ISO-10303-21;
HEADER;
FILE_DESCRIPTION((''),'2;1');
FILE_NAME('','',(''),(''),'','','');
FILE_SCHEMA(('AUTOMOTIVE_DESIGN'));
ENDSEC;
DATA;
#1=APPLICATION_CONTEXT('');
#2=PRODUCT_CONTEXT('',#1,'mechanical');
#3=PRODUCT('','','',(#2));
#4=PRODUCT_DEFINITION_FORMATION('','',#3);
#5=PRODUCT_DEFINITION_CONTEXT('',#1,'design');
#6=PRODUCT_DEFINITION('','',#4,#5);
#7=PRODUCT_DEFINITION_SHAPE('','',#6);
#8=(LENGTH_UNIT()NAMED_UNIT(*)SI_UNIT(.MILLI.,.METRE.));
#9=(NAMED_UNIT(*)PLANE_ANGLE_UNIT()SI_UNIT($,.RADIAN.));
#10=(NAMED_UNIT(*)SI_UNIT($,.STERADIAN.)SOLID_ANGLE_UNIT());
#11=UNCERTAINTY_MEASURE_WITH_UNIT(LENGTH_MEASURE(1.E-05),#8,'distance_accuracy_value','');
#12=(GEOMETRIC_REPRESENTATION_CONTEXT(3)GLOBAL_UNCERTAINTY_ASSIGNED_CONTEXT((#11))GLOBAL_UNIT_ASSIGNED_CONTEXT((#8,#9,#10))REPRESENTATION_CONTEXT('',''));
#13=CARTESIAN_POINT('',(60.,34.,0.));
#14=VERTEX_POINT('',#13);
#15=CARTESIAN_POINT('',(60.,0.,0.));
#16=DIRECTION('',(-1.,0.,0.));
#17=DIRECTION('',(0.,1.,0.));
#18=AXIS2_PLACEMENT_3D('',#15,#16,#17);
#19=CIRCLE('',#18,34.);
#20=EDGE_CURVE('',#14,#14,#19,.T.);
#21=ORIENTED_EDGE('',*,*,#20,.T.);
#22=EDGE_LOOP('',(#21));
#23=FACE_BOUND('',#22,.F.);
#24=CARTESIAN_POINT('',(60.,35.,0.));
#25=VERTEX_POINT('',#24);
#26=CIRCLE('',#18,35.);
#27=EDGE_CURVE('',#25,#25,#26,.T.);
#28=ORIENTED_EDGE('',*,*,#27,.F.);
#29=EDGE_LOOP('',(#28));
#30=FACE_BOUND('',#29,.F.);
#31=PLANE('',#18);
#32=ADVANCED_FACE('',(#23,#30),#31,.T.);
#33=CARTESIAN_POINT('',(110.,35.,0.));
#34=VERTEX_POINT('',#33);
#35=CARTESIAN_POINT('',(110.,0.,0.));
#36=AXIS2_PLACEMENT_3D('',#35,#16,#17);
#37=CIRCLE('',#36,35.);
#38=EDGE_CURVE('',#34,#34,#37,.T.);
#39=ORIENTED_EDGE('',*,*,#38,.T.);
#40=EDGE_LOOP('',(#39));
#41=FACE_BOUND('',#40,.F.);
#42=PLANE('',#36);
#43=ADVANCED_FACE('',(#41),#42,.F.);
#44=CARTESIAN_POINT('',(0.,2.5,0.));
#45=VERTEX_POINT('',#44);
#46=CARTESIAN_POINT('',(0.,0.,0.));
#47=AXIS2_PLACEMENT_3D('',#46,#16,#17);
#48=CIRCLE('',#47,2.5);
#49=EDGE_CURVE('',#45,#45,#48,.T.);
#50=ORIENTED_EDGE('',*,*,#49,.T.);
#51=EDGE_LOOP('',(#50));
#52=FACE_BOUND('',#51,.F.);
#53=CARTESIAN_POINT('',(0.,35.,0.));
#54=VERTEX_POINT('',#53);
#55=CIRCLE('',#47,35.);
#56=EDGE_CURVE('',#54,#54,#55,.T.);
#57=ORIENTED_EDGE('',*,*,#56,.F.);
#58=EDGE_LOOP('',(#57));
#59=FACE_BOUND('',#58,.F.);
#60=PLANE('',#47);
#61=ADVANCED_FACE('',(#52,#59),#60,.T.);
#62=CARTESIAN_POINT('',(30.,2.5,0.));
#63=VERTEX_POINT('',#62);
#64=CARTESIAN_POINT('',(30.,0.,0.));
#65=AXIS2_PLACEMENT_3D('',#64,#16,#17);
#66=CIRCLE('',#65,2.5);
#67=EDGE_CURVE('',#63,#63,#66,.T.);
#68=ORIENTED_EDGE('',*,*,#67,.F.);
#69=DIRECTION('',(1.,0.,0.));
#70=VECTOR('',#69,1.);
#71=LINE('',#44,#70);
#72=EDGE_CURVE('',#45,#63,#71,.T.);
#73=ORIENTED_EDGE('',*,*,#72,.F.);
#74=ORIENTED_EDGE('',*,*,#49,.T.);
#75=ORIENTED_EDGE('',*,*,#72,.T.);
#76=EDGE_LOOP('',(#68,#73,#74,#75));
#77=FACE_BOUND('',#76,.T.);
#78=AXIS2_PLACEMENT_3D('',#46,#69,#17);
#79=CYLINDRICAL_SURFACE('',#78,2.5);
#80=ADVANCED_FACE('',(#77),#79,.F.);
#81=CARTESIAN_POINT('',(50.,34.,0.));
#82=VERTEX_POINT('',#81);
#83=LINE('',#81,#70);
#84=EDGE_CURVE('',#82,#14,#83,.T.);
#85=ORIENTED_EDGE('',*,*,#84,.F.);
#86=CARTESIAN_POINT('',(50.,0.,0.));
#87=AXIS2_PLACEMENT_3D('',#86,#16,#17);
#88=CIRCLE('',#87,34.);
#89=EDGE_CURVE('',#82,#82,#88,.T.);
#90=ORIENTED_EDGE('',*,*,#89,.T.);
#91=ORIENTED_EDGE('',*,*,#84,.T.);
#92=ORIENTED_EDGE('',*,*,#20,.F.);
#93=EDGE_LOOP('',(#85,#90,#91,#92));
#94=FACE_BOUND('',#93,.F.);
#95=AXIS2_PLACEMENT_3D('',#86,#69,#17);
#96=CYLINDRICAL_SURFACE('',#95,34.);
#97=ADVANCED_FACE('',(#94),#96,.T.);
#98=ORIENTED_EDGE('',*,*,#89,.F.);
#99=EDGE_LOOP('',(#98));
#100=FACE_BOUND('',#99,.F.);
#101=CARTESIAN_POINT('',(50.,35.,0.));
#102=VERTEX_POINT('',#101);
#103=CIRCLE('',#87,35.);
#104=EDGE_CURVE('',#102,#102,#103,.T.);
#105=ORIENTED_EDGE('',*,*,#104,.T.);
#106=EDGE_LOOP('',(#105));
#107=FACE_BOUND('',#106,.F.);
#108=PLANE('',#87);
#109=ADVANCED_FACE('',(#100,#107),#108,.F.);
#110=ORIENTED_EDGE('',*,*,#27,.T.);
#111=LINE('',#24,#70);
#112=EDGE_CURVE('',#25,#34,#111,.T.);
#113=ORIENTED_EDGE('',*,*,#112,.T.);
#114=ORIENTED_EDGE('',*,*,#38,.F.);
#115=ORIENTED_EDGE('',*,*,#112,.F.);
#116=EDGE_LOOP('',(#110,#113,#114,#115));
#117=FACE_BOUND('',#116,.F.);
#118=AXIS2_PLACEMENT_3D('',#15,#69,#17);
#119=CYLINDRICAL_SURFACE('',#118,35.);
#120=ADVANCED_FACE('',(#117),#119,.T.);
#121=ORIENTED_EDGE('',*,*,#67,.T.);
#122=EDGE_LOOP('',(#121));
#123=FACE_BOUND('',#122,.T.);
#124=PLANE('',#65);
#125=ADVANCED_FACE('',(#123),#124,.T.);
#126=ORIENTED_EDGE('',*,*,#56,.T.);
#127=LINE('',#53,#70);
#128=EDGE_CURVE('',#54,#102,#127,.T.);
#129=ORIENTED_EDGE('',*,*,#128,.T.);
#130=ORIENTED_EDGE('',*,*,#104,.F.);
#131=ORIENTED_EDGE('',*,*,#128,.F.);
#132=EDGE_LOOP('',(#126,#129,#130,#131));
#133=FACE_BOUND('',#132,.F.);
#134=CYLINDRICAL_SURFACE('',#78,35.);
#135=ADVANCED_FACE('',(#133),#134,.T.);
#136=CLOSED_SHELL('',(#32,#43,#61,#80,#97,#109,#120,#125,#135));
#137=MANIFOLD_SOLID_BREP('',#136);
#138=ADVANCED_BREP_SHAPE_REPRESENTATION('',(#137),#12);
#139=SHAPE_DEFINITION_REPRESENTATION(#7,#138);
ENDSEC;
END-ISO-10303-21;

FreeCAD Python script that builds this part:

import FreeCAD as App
import Part
import Sketcher

V = App.Vector
Q = App.Units.Quantity


def add_polygon(sketch, points):
    """Adds a closed chain of lines whose ends are joined by coincident constraints."""
    first, n = sketch.GeometryCount, len(points)
    for a, b in zip(points, points[1:] + points[:1]):
        sketch.addGeometry(Part.LineSegment(App.Vector(*a, 0), App.Vector(*b, 0)), False)
    for i in range(n):
        sketch.addConstraint(Sketcher.Constraint("Coincident", first + i, 2, first + (i + 1) % n, 1))

doc = App.newDocument("Part")
params = doc.addObject("Spreadsheet::Sheet", "Params")
for row, (alias, value) in enumerate([
    ("sketch1_width", "30 mm"),
    ("sketch1_width2", "50 mm"),
    ("sketch1_width3", "10 mm"),
    ("sketch1_height", "35 mm"),
    ("sketch1_height2", "1 mm"),
    ("revolution_angle", "360 deg"),
], start=1):
    params.set(f"A{row}", alias)
    params.set(f"B{row}", "=" + value)
    params.setAlias(f"B{row}", alias)

body = doc.addObject("PartDesign::Body", "Body")

# Sketch on XY plane
sketch1 = body.newObject("Sketcher::SketchObject", "Sketch")
sketch1.AttachmentSupport = (doc.getObject("XY_Plane"), [""])
sketch1.MapMode = "FlatFace"
add_polygon(sketch1, [(0, 35), (0, 2.5), (30, 2.5), (30, 0), (110, 0), (110, 35), (60, 35), (60, 34), (50, 34), (50, 35)])  # lines 0-9
sketch1.addConstraint([
    Sketcher.Constraint("Vertical", 0),
    Sketcher.Constraint("Horizontal", 1),
    Sketcher.Constraint("Vertical", 2),
    Sketcher.Constraint("Horizontal", 3),
    Sketcher.Constraint("Vertical", 4),
    Sketcher.Constraint("Horizontal", 5),
    Sketcher.Constraint("Vertical", 6),
    Sketcher.Constraint("Horizontal", 7),
    Sketcher.Constraint("Vertical", 8),
    Sketcher.Constraint("Horizontal", 9),
    Sketcher.Constraint("PointOnObject", 0, 2, -2),
    Sketcher.Constraint("PointOnObject", 2, 2, -1),
    Sketcher.Constraint("Horizontal", 5, 2, 8, 2),
    Sketcher.Constraint("Equal", 5, 9),
    Sketcher.Constraint("DistanceX", 1, 1, 1, 2, Q("30 mm")),
    Sketcher.Constraint("DistanceX", 5, 2, 5, 1, Q("50 mm")),
    Sketcher.Constraint("DistanceX", 7, 2, 7, 1, Q("10 mm")),
    Sketcher.Constraint("DistanceY", 4, 1, 4, 2, Q("35 mm")),
    Sketcher.Constraint("DistanceY", 6, 2, 6, 1, Q("1 mm")),
    Sketcher.Constraint("DistanceY", 2, 2, 2, 1, Q("2.5 mm")),
])
sketch1.setExpression("Constraints[24]", "Params.sketch1_width")
sketch1.setExpression("Constraints[25]", "Params.sketch1_width2")
sketch1.setExpression("Constraints[26]", "Params.sketch1_width3")
sketch1.setExpression("Constraints[27]", "Params.sketch1_height")
sketch1.setExpression("Constraints[28]", "Params.sketch1_height2")
revolution = body.newObject("PartDesign::Revolution", "Revolution")
revolution.Profile = sketch1
revolution.ReferenceAxis = (sketch1, ["H_Axis"])
revolution.setExpression("Angle", "Params.revolution_angle")

doc.recompute()
